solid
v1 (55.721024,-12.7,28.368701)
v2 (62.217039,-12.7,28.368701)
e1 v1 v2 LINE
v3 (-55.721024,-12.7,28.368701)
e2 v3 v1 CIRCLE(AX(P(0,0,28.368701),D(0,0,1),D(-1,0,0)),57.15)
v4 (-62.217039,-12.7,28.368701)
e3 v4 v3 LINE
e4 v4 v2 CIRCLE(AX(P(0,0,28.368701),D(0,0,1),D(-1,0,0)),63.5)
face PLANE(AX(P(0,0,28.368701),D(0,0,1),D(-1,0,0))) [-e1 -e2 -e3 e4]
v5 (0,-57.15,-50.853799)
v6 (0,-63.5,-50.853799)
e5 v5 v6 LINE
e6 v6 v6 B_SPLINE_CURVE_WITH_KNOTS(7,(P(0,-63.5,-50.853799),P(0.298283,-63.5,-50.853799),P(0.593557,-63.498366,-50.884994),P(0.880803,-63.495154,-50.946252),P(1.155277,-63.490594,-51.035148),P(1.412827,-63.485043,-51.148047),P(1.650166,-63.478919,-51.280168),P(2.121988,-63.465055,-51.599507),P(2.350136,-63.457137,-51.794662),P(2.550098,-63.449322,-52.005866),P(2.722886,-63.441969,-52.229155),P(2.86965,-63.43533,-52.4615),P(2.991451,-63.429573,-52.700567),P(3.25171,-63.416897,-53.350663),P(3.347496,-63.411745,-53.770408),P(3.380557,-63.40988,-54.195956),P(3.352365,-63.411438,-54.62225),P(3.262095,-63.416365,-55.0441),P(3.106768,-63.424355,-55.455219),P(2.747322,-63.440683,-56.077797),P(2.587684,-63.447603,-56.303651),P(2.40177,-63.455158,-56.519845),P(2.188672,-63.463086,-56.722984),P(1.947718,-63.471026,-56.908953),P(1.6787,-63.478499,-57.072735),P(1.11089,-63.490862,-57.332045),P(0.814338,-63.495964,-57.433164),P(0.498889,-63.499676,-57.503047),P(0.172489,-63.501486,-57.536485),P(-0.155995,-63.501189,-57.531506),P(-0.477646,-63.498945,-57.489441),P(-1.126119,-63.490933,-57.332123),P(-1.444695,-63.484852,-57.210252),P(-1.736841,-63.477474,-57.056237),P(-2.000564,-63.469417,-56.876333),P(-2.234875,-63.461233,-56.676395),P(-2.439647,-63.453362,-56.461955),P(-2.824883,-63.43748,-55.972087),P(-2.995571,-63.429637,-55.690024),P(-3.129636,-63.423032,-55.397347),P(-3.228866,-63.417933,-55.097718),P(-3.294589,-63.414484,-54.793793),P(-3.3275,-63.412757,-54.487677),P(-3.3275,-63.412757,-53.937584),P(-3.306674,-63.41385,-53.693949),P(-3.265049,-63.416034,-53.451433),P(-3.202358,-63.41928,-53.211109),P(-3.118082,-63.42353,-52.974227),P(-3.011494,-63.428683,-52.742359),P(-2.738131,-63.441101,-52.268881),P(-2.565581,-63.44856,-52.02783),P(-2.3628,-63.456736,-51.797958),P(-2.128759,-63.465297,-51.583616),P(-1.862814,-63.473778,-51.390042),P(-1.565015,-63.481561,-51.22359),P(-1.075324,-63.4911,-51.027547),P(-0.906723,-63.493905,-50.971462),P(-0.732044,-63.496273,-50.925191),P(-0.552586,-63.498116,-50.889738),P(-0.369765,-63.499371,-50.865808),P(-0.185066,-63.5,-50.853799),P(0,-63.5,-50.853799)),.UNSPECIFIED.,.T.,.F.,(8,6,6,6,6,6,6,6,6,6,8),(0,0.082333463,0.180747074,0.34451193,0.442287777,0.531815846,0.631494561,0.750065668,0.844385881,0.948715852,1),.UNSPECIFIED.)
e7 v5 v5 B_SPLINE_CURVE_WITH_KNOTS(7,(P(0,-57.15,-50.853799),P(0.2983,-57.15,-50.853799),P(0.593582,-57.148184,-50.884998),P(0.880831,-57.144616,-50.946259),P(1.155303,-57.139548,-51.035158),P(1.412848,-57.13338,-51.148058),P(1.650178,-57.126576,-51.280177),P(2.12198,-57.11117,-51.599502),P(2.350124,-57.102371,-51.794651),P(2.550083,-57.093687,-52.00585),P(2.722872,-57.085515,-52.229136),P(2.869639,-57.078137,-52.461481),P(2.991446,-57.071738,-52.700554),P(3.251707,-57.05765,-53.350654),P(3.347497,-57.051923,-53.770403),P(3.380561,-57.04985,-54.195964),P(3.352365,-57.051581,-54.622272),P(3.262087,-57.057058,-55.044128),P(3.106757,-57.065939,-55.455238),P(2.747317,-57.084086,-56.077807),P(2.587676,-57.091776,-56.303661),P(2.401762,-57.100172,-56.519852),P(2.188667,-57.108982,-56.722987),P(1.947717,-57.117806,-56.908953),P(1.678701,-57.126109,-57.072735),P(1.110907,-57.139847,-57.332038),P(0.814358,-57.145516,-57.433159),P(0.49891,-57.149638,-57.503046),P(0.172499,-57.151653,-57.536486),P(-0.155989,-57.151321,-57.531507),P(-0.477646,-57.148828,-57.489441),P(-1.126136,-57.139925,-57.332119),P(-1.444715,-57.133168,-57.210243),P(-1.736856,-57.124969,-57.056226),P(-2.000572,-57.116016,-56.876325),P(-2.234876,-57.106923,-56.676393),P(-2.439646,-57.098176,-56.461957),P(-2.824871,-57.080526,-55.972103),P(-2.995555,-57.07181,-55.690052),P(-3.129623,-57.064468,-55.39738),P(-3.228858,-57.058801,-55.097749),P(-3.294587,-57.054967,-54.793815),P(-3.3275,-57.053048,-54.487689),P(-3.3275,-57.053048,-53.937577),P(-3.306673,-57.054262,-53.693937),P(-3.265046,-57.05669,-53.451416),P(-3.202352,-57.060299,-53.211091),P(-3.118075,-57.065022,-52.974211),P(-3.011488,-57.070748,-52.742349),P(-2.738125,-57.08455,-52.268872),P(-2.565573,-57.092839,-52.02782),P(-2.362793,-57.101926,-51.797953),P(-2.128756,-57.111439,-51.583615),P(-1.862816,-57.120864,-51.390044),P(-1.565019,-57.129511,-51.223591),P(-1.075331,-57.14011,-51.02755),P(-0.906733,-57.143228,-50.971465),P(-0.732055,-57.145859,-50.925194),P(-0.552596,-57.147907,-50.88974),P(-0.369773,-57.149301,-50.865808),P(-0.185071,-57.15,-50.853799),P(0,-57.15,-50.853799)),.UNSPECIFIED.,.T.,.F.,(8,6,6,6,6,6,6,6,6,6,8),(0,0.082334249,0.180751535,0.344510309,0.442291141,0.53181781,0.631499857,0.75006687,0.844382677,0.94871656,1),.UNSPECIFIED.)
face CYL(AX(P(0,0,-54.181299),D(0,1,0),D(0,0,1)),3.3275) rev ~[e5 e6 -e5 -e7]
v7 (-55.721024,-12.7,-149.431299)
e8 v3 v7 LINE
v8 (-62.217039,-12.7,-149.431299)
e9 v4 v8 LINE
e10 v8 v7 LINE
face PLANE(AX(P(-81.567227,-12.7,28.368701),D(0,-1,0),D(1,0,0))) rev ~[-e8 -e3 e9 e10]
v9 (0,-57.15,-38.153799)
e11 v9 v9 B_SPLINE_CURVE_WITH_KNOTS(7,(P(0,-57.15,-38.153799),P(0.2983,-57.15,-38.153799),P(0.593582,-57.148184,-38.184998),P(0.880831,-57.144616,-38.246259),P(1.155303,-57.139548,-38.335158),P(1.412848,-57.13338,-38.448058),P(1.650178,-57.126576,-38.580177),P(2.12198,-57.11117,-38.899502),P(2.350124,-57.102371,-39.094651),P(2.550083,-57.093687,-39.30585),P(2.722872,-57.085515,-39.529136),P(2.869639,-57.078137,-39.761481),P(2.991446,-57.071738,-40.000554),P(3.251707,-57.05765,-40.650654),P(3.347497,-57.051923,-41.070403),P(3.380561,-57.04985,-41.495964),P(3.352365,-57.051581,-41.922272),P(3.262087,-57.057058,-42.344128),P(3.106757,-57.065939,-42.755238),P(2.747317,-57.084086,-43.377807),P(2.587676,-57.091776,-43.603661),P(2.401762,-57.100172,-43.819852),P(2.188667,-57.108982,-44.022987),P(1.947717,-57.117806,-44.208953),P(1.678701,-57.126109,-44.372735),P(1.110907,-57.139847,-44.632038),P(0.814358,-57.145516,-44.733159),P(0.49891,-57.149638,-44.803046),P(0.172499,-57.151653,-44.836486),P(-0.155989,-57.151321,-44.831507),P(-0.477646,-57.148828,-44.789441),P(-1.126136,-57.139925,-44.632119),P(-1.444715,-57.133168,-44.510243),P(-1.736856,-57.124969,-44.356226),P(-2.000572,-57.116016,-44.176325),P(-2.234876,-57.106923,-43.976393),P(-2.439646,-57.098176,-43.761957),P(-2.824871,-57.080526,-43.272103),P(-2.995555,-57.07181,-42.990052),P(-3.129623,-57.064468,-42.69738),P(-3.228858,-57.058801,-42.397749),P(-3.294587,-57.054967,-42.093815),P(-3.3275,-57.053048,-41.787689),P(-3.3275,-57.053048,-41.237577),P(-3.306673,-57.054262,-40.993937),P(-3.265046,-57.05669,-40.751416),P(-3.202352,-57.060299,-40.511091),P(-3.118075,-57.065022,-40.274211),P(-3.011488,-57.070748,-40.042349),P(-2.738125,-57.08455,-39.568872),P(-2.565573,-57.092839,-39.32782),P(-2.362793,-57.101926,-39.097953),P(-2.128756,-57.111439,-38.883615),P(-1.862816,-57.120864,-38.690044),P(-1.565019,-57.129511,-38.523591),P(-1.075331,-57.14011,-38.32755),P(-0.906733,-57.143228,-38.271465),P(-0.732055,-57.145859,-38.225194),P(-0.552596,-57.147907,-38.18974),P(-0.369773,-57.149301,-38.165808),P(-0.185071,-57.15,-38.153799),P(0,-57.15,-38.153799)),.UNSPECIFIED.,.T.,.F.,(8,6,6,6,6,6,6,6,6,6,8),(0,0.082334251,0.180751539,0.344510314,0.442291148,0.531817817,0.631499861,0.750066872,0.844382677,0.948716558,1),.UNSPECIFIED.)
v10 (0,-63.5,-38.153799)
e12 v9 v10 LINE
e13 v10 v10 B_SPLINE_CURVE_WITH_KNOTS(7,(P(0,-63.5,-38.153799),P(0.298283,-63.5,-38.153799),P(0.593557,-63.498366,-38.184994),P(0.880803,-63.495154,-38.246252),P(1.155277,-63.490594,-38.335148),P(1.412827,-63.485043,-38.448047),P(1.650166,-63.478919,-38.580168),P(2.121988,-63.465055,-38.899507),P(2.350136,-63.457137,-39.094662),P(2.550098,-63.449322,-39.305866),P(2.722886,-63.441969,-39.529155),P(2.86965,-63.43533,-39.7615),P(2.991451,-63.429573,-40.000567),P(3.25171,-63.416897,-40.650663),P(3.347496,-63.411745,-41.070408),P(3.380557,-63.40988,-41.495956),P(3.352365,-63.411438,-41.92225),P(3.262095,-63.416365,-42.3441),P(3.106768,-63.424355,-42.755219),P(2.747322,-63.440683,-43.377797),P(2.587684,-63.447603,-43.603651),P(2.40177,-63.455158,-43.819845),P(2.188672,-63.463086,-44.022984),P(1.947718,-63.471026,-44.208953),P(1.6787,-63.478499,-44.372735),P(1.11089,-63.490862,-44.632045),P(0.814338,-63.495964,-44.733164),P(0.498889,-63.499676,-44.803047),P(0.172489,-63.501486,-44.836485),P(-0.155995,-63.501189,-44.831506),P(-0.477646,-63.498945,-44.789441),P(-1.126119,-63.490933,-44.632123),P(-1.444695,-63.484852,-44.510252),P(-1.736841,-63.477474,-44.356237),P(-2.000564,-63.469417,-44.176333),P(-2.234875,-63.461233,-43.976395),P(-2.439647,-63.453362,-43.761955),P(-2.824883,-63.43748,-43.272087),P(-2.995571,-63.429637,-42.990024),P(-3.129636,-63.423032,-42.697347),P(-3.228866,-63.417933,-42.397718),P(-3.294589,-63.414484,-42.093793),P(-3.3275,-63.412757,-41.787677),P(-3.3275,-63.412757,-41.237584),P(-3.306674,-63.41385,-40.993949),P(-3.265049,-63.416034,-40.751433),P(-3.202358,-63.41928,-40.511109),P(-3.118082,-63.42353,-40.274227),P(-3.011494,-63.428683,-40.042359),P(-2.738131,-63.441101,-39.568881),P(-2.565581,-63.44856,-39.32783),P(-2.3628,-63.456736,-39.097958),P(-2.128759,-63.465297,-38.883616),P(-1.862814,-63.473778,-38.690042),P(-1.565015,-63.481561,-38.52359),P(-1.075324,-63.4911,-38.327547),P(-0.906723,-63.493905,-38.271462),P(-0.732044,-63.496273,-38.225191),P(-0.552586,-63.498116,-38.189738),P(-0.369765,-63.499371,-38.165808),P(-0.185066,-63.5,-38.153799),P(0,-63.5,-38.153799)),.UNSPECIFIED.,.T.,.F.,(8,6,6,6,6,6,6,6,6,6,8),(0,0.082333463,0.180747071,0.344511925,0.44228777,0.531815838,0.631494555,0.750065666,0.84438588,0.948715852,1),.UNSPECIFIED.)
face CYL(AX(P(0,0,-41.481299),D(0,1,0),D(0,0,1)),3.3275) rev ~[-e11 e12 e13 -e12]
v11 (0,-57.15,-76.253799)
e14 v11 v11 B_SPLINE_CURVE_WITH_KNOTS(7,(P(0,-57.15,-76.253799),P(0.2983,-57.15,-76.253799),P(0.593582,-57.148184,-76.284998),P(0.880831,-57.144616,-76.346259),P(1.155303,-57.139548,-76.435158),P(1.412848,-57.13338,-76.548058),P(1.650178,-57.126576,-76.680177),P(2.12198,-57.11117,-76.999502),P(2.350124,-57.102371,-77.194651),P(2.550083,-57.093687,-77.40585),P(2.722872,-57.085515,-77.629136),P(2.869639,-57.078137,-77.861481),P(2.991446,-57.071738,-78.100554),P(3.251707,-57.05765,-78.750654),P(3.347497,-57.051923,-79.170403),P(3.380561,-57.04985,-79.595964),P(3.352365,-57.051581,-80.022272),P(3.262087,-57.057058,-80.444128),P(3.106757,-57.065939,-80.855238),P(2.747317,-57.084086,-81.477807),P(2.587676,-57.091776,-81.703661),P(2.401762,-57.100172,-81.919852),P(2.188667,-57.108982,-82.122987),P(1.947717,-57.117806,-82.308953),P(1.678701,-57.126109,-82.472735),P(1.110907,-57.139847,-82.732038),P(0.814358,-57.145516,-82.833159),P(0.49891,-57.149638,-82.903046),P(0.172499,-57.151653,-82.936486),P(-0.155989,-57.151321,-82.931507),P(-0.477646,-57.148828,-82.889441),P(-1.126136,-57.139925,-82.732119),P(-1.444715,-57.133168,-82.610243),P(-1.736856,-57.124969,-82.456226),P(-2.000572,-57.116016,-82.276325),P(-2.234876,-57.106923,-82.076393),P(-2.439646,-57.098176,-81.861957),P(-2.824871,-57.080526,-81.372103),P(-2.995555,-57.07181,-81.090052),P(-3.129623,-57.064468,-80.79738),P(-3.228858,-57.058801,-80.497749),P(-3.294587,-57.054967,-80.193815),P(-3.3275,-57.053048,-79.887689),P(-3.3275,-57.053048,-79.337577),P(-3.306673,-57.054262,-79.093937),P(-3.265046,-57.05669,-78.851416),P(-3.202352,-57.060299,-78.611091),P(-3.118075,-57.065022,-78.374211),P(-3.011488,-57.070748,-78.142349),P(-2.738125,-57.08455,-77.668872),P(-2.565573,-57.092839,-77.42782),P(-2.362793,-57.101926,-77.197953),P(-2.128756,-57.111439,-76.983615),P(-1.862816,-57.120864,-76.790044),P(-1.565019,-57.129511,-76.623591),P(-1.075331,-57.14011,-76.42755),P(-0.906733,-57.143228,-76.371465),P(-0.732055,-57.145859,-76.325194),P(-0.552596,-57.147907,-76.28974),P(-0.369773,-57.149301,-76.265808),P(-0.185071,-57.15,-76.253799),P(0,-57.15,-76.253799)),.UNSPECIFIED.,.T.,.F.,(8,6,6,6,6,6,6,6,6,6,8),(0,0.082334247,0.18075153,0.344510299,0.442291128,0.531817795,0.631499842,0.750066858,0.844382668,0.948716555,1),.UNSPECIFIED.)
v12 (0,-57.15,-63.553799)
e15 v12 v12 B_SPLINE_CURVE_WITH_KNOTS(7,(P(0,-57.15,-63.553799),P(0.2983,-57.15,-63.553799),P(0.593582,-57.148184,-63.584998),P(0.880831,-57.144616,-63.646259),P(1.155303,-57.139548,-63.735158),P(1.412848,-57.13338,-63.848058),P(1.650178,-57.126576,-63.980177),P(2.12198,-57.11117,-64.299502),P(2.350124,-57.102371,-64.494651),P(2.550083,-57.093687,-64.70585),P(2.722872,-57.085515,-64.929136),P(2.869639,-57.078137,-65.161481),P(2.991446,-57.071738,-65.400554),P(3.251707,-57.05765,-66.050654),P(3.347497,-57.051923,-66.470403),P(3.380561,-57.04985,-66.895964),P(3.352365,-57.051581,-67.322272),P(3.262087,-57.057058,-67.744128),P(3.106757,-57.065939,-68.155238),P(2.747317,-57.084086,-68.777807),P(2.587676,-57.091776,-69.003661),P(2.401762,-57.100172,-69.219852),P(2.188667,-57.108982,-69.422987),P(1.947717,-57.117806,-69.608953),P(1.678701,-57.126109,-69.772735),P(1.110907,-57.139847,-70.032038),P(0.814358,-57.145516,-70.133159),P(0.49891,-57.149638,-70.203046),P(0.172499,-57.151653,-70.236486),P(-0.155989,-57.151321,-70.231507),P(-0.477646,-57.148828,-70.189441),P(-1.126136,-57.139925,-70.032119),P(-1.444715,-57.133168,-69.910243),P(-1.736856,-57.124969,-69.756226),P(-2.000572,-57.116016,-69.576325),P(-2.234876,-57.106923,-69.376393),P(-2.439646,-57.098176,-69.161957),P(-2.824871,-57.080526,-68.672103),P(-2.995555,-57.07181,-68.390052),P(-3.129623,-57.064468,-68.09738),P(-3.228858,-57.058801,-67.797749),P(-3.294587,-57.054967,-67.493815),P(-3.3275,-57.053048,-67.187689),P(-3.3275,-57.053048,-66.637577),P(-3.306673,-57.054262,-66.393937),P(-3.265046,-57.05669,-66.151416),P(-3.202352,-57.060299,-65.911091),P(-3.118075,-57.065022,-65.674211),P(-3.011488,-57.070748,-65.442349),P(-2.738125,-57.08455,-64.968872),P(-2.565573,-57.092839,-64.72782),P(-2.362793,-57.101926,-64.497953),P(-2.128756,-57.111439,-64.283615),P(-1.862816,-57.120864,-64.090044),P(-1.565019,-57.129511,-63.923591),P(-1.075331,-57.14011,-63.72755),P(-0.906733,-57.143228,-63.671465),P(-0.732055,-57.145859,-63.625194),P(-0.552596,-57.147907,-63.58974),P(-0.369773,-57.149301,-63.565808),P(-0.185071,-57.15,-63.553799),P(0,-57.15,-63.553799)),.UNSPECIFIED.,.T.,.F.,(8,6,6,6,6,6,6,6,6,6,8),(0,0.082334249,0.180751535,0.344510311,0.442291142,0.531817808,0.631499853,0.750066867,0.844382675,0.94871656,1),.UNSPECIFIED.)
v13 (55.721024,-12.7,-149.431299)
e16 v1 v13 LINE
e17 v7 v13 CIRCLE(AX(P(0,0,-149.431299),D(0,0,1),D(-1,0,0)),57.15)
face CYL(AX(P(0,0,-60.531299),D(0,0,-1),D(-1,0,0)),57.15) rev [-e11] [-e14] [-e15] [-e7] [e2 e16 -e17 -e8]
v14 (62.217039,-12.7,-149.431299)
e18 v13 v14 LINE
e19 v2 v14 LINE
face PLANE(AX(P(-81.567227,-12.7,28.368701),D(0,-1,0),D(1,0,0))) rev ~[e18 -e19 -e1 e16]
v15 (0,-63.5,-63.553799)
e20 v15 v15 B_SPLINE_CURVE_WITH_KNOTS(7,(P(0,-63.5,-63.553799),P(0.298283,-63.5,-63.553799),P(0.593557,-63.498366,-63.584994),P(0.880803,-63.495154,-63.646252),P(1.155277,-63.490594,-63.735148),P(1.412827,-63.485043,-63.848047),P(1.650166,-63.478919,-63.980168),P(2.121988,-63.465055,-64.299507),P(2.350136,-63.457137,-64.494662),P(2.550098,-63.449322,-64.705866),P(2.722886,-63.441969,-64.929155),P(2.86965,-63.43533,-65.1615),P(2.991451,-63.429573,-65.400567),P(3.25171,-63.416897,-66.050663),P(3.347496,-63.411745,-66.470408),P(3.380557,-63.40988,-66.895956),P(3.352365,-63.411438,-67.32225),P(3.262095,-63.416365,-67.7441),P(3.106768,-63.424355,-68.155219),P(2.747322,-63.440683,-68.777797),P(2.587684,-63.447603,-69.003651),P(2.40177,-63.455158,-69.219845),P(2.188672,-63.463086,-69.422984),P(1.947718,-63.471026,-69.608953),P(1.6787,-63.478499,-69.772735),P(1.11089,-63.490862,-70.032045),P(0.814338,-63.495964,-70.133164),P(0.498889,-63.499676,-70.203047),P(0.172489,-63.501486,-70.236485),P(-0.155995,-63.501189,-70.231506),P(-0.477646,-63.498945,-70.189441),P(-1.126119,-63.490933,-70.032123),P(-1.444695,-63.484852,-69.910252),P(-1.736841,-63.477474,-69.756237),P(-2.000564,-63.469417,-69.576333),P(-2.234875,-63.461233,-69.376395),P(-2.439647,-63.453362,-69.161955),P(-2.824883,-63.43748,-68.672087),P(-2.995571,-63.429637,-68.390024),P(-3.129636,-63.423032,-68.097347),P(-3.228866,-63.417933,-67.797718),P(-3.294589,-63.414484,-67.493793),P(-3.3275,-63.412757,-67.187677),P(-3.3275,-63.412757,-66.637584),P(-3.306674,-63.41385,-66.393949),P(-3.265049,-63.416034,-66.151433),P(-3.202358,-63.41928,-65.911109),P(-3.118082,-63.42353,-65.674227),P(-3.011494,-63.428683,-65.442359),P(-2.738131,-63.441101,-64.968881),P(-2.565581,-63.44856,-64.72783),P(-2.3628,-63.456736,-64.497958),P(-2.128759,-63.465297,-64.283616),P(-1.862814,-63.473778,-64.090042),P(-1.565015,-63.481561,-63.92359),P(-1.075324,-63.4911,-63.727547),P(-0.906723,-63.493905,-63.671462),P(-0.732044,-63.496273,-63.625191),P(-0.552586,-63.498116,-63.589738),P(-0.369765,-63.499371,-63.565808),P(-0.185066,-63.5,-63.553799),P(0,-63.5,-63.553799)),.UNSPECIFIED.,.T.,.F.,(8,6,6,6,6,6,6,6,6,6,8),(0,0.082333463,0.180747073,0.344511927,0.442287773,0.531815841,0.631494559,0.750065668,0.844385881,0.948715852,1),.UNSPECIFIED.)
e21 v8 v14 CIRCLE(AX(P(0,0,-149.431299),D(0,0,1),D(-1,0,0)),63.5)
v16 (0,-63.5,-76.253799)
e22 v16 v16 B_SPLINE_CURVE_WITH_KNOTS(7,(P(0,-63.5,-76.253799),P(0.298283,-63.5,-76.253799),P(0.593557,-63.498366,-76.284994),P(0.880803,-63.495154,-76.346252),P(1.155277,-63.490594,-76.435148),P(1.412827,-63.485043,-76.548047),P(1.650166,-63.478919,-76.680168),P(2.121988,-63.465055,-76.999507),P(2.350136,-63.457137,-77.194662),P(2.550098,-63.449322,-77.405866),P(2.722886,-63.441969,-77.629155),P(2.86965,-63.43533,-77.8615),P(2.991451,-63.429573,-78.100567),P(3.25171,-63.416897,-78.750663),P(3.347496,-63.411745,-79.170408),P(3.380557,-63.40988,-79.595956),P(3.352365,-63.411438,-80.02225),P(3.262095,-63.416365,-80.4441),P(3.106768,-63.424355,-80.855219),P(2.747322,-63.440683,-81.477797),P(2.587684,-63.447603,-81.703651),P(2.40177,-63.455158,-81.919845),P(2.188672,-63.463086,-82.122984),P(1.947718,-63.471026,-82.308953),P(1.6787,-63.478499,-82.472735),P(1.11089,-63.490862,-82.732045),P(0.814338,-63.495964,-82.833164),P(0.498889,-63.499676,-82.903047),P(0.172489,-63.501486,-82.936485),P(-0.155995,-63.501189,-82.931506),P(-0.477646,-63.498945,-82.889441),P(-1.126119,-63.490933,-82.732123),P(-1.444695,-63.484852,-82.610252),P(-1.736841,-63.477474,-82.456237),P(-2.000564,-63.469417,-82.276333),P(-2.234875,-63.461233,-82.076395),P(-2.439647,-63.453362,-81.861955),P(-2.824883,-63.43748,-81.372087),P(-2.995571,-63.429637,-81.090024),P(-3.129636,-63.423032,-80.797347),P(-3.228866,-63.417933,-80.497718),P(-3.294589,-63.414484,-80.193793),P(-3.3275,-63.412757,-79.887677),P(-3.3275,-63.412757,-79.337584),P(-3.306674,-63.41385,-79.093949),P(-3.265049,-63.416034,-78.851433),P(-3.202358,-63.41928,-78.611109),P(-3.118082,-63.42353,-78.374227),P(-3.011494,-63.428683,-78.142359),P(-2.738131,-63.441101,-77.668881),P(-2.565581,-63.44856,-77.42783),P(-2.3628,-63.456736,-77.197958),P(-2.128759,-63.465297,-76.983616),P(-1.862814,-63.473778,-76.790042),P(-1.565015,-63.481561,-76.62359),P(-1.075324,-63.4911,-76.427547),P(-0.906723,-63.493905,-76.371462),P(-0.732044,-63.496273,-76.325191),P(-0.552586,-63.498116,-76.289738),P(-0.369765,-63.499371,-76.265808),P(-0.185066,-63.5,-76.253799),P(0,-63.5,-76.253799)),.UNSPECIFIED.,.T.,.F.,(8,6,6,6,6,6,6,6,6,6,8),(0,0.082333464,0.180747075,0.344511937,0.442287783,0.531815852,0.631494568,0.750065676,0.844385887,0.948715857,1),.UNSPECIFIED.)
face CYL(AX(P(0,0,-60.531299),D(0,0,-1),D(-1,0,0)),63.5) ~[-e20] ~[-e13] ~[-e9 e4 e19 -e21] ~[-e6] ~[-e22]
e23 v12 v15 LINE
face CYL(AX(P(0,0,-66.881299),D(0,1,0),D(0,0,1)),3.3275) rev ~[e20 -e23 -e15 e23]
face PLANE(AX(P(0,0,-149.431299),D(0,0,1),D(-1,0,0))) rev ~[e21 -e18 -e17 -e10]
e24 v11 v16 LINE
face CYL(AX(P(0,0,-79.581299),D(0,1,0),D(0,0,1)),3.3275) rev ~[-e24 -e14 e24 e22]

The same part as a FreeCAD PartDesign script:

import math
import FreeCAD as App
import Part
import Sketcher
from FreeCAD import Vector
Q = App.Units.Quantity


def add_polygon(sketch, points):
    """Adds a closed chain of lines whose ends are joined by coincident constraints."""
    first, n = sketch.GeometryCount, len(points)
    for a, b in zip(points, points[1:] + points[:1]):
        sketch.addGeometry(Part.LineSegment(App.Vector(*a, 0), App.Vector(*b, 0)), False)
    for i in range(n):
        sketch.addConstraint(Sketcher.Constraint("Coincident", first + i, 2, first + (i + 1) % n, 1))

doc = App.newDocument("Part")
params = doc.addObject("Spreadsheet::Sheet", "Params")
for row, (alias, value) in enumerate([
    ("sketch1_height", "7 in"),
    ("sketch1_width", "0.25 in"),
    ("revolution_angle", "180 deg"),
    ("sketch3_radius", "3.25 in"),
], start=1):
    params.set(f"A{row}", alias)
    params.set(f"B{row}", "=" + value)
    params.setAlias(f"B{row}", alias)

body = doc.addObject("PartDesign::Body", "Body")

# Sketch on XZ plane
sketch1 = body.newObject("Sketcher::SketchObject", "Sketch")
sketch1.AttachmentSupport = (doc.getObject("XZ_Plane"), [""])
sketch1.MapMode = "FlatFace"
add_polygon(sketch1, [(-57, 28), (-64, 28), (-64, -149), (-57, -149)])  # lines 0-3
sketch1.addConstraint([
    Sketcher.Constraint("Horizontal", 0),
    Sketcher.Constraint("Vertical", 1),
    Sketcher.Constraint("Horizontal", 2),
    Sketcher.Constraint("Vertical", 3),
    Sketcher.Constraint("DistanceY", 1, 2, 1, 1, Q("7 in")),
    Sketcher.Constraint("DistanceX", 0, 2, 0, 1, Q("0.25 in")),
    Sketcher.Constraint("DistanceX", 0, 2, -1, 1, Q("2.5 in")),
    Sketcher.Constraint("DistanceY", -1, 1, 0, 2, 28.368701),
])
sketch1.setExpression("Constraints[8]", "Params.sketch1_height")
sketch1.setExpression("Constraints[9]", "Params.sketch1_width")
revolution = body.newObject("PartDesign::Revolution", "Revolution")
revolution.Profile = sketch1
revolution.ReferenceAxis = (sketch1, ["V_Axis"])
revolution.setExpression("Angle", "Params.revolution_angle")

# Sketch on XZ plane
sketch2 = body.newObject("Sketcher::SketchObject", "Sketch001")
sketch2.AttachmentSupport = (doc.getObject("XZ_Plane"), [""])
sketch2.MapMode = "FlatFace"
sketch2.addGeometry([
    Part.Circle(Vector(0, -66.9, 0), Vector(0, 0, 1), 3.3),
    Part.Circle(Vector(0, -54.2, 0), Vector(0, 0, 1), 3.3),
    Part.Circle(Vector(0, -79.6, 0), Vector(0, 0, 1), 3.3),
    Part.Circle(Vector(0, -41.5, 0), Vector(0, 0, 1), 3.3),
], False)
sketch2.addConstraint([
    Sketcher.Constraint("Equal", 0, 1),
    Sketcher.Constraint("Equal", 1, 2),
    Sketcher.Constraint("Equal", 2, 3),
    Sketcher.Constraint("PointOnObject", 0, 3, -2),
    Sketcher.Constraint("PointOnObject", 1, 3, -2),
    Sketcher.Constraint("PointOnObject", 2, 3, -2),
    Sketcher.Constraint("PointOnObject", 3, 3, -2),
    Sketcher.Constraint("DistanceY", 2, 3, 1, 3, Q("1 in")),
    Sketcher.Constraint("DistanceY", 0, 3, 3, 3, Q("1 in")),
    Sketcher.Constraint("DistanceY", 0, 3, 1, 3, Q("0.5 in")),
    Sketcher.Constraint("Diameter", 0, 6.655),
    Sketcher.Constraint("DistanceY", 0, 3, -1, 1, 66.881299),
])
pocket1 = body.newObject("PartDesign::Pocket", "Pocket")
pocket1.Profile = sketch2
pocket1.Type = "ThroughAll"
pocket1.Reversed = True

# Sketch on XY plane
sketch3 = body.newObject("Sketcher::SketchObject", "Sketch002")
sketch3.AttachmentSupport = (doc.getObject("XY_Plane"), [""])
sketch3.MapMode = "FlatFace"
sketch3.AttachmentOffset = App.Placement(Vector(0, 0, 28.368701), App.Rotation())
sketch3.addGeometry([
    Part.LineSegment(Vector(-82, -13, 0), Vector(82, -13, 0)),
    Part.ArcOfCircle(Part.Circle(Vector(0, 0, 0), Vector(0, 0, 1), 83), math.radians(-9), math.radians(189)),
], False)
sketch3.addConstraint([
    Sketcher.Constraint("Coincident", 0, 1, 1, 2),
    Sketcher.Constraint("Coincident", 1, 1, 0, 2),
    Sketcher.Constraint("Horizontal", 0),
    Sketcher.Constraint("Coincident", 1, 3, -1, 1),
    Sketcher.Constraint("Radius", 1, Q("3.25 in")),
    Sketcher.Constraint("DistanceY", 0, 1, -1, 1, Q("0.5 in")),
])
sketch3.setExpression("Constraints[4]", "Params.sketch3_radius")
pocket2 = body.newObject("PartDesign::Pocket", "Pocket001")
pocket2.Profile = sketch3
pocket2.Type = "ThroughAll"

doc.recompute()
